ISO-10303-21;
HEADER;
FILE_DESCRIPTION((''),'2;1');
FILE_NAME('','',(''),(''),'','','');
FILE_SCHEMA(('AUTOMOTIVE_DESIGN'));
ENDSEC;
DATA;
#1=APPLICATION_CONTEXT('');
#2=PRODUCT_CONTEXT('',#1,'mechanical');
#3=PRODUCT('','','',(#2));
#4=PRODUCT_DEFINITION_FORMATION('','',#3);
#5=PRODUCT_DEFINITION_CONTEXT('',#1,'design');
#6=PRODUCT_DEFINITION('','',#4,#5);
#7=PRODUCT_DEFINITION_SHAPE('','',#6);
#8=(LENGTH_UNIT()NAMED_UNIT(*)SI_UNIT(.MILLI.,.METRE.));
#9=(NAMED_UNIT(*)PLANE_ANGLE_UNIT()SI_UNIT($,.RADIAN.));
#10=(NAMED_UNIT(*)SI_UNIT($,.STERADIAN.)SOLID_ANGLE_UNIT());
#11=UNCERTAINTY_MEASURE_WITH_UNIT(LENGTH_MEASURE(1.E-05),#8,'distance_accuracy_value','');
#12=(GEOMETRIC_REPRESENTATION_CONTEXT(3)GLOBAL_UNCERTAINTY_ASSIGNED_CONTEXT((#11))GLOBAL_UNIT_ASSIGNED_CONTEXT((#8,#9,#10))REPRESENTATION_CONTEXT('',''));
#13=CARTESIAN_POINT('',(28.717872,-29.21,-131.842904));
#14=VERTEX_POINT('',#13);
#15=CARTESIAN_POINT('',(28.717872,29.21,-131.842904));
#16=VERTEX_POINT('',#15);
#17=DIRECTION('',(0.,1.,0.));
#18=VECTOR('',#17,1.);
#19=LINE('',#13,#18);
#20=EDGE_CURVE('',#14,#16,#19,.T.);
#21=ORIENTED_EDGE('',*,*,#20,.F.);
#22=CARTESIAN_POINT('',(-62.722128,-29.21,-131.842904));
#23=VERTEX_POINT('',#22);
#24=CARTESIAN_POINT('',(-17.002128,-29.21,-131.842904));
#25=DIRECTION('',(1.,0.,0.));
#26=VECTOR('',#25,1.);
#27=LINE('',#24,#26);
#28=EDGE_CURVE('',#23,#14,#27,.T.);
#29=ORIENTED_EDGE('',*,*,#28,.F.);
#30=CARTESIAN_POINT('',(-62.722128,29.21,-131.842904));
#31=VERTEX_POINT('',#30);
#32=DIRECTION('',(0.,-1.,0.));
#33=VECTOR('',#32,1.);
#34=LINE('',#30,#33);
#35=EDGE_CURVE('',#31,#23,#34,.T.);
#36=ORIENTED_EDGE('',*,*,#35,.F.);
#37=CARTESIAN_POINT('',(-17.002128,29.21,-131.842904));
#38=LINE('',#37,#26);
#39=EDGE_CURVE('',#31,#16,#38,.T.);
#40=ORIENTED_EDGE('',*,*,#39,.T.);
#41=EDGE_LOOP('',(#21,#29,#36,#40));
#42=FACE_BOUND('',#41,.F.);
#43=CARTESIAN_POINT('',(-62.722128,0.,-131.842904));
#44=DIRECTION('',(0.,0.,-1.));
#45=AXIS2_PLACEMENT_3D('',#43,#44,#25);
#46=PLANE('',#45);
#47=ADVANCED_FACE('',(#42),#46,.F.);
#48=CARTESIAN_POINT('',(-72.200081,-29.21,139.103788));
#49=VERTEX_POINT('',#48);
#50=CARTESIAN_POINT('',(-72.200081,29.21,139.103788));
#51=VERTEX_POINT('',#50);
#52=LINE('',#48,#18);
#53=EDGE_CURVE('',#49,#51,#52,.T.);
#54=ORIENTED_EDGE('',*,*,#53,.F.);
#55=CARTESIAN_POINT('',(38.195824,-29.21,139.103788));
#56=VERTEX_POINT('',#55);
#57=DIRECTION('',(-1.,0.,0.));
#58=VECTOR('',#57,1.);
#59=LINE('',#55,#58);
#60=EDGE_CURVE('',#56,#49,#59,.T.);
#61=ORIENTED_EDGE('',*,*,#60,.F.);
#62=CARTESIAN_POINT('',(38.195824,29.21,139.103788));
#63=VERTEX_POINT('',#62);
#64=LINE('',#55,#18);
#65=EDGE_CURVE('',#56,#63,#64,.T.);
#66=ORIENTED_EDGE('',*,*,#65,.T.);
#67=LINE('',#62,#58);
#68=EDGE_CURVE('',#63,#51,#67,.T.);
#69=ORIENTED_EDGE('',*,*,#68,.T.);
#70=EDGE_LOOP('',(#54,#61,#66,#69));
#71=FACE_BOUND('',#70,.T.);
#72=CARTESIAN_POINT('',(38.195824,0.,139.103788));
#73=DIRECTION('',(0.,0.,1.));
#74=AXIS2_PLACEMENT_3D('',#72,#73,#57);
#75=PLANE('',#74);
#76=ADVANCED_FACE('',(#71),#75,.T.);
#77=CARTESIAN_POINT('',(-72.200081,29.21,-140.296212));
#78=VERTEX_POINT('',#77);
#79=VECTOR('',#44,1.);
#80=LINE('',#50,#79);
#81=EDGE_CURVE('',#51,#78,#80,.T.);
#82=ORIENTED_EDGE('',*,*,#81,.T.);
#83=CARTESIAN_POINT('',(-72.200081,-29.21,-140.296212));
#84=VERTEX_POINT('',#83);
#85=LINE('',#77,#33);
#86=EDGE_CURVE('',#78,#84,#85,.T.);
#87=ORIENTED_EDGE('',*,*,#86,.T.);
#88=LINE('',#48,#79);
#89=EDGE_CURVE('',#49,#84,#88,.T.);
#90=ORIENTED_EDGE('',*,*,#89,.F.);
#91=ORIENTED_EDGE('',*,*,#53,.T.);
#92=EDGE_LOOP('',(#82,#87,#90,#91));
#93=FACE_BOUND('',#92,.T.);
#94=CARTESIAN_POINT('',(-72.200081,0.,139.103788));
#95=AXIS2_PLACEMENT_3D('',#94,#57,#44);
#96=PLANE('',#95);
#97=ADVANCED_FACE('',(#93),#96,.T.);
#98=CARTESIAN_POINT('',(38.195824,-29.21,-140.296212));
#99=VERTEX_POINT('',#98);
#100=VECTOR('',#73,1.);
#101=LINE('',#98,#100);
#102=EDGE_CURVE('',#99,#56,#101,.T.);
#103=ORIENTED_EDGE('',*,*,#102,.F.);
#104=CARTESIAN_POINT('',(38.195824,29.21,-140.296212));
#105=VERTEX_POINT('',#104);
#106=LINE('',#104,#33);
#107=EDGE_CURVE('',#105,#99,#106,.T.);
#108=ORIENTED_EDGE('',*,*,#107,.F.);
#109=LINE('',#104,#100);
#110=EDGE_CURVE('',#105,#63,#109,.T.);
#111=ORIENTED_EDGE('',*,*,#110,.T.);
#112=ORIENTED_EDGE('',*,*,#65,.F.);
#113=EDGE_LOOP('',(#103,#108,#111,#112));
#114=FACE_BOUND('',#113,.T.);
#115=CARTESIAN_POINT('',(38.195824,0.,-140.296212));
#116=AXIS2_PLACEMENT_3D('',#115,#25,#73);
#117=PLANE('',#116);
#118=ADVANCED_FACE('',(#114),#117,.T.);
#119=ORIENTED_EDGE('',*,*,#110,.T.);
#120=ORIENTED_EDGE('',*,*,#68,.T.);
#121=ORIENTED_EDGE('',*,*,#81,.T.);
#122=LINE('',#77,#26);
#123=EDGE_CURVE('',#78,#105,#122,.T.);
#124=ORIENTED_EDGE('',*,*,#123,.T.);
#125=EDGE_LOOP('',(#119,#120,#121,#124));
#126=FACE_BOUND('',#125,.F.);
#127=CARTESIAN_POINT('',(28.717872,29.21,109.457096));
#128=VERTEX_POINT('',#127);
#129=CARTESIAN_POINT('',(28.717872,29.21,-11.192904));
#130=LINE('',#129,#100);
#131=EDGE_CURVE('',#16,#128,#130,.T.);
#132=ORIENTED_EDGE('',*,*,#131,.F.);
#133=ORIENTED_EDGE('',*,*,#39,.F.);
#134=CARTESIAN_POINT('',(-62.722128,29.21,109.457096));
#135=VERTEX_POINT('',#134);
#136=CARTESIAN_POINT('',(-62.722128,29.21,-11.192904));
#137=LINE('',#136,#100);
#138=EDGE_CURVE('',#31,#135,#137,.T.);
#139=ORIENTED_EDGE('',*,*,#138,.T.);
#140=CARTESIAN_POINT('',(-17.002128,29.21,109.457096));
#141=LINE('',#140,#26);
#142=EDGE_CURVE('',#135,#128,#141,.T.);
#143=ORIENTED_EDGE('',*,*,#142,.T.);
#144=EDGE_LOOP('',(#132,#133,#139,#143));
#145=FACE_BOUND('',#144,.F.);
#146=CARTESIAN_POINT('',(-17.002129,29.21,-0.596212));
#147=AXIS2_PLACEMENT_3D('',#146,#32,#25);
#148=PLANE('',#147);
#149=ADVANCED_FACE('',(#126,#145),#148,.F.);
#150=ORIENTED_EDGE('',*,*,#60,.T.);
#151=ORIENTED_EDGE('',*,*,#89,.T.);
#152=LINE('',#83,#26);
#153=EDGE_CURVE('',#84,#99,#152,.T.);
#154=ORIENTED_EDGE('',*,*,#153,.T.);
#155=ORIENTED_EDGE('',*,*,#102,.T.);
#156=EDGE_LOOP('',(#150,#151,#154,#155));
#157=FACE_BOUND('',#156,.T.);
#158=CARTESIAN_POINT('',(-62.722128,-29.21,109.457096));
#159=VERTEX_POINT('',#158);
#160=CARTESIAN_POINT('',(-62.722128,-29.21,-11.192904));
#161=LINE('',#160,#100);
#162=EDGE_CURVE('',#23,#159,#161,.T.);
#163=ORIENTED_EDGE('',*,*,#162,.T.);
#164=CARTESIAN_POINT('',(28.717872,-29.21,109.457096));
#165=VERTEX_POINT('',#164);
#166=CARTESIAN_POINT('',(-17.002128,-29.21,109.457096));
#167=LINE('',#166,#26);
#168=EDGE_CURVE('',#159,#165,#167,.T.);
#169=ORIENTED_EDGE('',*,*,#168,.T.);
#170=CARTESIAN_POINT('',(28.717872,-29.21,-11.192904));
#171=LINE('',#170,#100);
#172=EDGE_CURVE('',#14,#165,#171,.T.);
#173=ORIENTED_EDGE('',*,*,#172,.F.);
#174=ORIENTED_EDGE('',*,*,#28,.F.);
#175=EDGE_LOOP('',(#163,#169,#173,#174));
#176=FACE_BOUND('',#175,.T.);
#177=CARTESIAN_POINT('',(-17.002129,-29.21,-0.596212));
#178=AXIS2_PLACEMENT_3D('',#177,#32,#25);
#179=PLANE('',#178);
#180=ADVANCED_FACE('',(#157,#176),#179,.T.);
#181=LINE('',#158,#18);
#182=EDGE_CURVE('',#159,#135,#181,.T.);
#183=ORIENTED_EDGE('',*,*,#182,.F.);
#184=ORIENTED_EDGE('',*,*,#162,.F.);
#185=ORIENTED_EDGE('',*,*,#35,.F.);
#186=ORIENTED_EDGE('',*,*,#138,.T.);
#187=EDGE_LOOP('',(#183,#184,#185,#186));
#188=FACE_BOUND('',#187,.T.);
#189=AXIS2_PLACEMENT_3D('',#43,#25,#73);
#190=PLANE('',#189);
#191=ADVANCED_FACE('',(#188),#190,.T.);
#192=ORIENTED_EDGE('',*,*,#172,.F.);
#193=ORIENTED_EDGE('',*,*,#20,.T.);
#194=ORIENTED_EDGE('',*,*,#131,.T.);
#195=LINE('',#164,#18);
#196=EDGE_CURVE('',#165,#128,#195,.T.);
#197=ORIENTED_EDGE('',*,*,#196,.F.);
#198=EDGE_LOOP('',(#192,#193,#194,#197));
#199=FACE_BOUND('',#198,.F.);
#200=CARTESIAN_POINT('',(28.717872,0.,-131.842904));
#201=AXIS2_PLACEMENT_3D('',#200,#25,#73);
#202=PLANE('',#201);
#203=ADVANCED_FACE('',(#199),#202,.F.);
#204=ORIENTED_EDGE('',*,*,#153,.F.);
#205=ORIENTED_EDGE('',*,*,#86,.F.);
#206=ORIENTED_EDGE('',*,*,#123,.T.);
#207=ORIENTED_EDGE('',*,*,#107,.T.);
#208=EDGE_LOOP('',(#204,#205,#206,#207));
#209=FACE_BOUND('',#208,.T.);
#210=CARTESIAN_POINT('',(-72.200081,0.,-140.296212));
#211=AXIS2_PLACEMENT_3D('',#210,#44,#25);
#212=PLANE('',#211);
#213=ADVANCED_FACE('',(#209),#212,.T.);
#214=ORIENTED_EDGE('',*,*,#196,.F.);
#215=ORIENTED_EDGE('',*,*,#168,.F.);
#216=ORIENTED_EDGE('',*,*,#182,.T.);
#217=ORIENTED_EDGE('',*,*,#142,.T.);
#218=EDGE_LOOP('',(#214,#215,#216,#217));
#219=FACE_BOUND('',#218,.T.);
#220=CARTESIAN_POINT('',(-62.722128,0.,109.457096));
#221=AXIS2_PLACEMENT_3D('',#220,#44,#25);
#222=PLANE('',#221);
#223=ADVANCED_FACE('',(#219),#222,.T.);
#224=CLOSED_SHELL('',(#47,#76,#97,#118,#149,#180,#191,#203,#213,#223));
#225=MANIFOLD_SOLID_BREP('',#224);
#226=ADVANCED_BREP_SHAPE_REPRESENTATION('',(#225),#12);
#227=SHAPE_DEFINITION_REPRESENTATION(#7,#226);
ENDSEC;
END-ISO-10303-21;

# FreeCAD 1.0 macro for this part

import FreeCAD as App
import Part
import Sketcher
from FreeCAD import Vector
Q = App.Units.Quantity

doc = App.newDocument("Part")
body = doc.addObject("PartDesign::Body", "Body")

# Sketch on XZ plane
sketch1 = body.newObject("Sketcher::SketchObject", "Sketch")
sketch1.AttachmentSupport = (doc.getObject("XZ_Plane"), [""])
sketch1.MapMode = "FlatFace"
sketch1.addGeometry([
    Part.LineSegment(Vector(-72, 139, 0), Vector(-72, -140, 0)),  # 0
    Part.LineSegment(Vector(-72, -140, 0), Vector(38, -140, 0)),  # 1
    Part.LineSegment(Vector(38, -140, 0), Vector(38, 139, 0)),  # 2
    Part.LineSegment(Vector(38, 139, 0), Vector(-72, 139, 0)),  # 3
    Part.LineSegment(Vector(29, -132, 0), Vector(-63, -132, 0)),  # 4
    Part.LineSegment(Vector(-63, -132, 0), Vector(-63, 109, 0)),  # 5
    Part.LineSegment(Vector(-63, 109, 0), Vector(29, 109, 0)),  # 6
    Part.LineSegment(Vector(29, 109, 0), Vector(29, -132, 0)),  # 7
], False)
sketch1.addConstraint([
    Sketcher.Constraint("Coincident", 0, 2, 1, 1),
    Sketcher.Constraint("Coincident", 1, 2, 2, 1),
    Sketcher.Constraint("Coincident", 2, 2, 3, 1),
    Sketcher.Constraint("Coincident", 3, 2, 0, 1),
    Sketcher.Constraint("Coincident", 4, 2, 5, 1),
    Sketcher.Constraint("Coincident", 5, 2, 6, 1),
    Sketcher.Constraint("Coincident", 6, 2, 7, 1),
    Sketcher.Constraint("Coincident", 7, 2, 4, 1),
    Sketcher.Constraint("Vertical", 0),
    Sketcher.Constraint("Horizontal", 1),
    Sketcher.Constraint("Vertical", 2),
    Sketcher.Constraint("Horizontal", 3),
    Sketcher.Constraint("Horizontal", 4),
    Sketcher.Constraint("Vertical", 5),
    Sketcher.Constraint("Horizontal", 6),
    Sketcher.Constraint("Vertical", 7),
    Sketcher.Constraint("DistanceY", 0, 2, 0, 1, Q("11 in")),
    Sketcher.Constraint("DistanceX", 4, 2, 4, 1, Q("3.6 in")),
    Sketcher.Constraint("DistanceY", 5, 1, 5, 2, Q("9.5 in")),
    Sketcher.Constraint("DistanceX", 1, 1, 1, 2, 110.395905),
    Sketcher.Constraint("DistanceX", 0, 2, -1, 1, 72.200081),
    Sketcher.Constraint("DistanceY", 0, 2, -1, 1, 140.296212),
    Sketcher.Constraint("DistanceX", -1, 1, 6, 2, 28.717872),
    Sketcher.Constraint("DistanceY", 4, 2, 3, 2, 270.946692),
])
pad1 = body.newObject("PartDesign::Pad", "Pad")
pad1.Profile = sketch1
pad1.Length = Q("2.3 in")
pad1.Midplane = True

doc.recompute()
